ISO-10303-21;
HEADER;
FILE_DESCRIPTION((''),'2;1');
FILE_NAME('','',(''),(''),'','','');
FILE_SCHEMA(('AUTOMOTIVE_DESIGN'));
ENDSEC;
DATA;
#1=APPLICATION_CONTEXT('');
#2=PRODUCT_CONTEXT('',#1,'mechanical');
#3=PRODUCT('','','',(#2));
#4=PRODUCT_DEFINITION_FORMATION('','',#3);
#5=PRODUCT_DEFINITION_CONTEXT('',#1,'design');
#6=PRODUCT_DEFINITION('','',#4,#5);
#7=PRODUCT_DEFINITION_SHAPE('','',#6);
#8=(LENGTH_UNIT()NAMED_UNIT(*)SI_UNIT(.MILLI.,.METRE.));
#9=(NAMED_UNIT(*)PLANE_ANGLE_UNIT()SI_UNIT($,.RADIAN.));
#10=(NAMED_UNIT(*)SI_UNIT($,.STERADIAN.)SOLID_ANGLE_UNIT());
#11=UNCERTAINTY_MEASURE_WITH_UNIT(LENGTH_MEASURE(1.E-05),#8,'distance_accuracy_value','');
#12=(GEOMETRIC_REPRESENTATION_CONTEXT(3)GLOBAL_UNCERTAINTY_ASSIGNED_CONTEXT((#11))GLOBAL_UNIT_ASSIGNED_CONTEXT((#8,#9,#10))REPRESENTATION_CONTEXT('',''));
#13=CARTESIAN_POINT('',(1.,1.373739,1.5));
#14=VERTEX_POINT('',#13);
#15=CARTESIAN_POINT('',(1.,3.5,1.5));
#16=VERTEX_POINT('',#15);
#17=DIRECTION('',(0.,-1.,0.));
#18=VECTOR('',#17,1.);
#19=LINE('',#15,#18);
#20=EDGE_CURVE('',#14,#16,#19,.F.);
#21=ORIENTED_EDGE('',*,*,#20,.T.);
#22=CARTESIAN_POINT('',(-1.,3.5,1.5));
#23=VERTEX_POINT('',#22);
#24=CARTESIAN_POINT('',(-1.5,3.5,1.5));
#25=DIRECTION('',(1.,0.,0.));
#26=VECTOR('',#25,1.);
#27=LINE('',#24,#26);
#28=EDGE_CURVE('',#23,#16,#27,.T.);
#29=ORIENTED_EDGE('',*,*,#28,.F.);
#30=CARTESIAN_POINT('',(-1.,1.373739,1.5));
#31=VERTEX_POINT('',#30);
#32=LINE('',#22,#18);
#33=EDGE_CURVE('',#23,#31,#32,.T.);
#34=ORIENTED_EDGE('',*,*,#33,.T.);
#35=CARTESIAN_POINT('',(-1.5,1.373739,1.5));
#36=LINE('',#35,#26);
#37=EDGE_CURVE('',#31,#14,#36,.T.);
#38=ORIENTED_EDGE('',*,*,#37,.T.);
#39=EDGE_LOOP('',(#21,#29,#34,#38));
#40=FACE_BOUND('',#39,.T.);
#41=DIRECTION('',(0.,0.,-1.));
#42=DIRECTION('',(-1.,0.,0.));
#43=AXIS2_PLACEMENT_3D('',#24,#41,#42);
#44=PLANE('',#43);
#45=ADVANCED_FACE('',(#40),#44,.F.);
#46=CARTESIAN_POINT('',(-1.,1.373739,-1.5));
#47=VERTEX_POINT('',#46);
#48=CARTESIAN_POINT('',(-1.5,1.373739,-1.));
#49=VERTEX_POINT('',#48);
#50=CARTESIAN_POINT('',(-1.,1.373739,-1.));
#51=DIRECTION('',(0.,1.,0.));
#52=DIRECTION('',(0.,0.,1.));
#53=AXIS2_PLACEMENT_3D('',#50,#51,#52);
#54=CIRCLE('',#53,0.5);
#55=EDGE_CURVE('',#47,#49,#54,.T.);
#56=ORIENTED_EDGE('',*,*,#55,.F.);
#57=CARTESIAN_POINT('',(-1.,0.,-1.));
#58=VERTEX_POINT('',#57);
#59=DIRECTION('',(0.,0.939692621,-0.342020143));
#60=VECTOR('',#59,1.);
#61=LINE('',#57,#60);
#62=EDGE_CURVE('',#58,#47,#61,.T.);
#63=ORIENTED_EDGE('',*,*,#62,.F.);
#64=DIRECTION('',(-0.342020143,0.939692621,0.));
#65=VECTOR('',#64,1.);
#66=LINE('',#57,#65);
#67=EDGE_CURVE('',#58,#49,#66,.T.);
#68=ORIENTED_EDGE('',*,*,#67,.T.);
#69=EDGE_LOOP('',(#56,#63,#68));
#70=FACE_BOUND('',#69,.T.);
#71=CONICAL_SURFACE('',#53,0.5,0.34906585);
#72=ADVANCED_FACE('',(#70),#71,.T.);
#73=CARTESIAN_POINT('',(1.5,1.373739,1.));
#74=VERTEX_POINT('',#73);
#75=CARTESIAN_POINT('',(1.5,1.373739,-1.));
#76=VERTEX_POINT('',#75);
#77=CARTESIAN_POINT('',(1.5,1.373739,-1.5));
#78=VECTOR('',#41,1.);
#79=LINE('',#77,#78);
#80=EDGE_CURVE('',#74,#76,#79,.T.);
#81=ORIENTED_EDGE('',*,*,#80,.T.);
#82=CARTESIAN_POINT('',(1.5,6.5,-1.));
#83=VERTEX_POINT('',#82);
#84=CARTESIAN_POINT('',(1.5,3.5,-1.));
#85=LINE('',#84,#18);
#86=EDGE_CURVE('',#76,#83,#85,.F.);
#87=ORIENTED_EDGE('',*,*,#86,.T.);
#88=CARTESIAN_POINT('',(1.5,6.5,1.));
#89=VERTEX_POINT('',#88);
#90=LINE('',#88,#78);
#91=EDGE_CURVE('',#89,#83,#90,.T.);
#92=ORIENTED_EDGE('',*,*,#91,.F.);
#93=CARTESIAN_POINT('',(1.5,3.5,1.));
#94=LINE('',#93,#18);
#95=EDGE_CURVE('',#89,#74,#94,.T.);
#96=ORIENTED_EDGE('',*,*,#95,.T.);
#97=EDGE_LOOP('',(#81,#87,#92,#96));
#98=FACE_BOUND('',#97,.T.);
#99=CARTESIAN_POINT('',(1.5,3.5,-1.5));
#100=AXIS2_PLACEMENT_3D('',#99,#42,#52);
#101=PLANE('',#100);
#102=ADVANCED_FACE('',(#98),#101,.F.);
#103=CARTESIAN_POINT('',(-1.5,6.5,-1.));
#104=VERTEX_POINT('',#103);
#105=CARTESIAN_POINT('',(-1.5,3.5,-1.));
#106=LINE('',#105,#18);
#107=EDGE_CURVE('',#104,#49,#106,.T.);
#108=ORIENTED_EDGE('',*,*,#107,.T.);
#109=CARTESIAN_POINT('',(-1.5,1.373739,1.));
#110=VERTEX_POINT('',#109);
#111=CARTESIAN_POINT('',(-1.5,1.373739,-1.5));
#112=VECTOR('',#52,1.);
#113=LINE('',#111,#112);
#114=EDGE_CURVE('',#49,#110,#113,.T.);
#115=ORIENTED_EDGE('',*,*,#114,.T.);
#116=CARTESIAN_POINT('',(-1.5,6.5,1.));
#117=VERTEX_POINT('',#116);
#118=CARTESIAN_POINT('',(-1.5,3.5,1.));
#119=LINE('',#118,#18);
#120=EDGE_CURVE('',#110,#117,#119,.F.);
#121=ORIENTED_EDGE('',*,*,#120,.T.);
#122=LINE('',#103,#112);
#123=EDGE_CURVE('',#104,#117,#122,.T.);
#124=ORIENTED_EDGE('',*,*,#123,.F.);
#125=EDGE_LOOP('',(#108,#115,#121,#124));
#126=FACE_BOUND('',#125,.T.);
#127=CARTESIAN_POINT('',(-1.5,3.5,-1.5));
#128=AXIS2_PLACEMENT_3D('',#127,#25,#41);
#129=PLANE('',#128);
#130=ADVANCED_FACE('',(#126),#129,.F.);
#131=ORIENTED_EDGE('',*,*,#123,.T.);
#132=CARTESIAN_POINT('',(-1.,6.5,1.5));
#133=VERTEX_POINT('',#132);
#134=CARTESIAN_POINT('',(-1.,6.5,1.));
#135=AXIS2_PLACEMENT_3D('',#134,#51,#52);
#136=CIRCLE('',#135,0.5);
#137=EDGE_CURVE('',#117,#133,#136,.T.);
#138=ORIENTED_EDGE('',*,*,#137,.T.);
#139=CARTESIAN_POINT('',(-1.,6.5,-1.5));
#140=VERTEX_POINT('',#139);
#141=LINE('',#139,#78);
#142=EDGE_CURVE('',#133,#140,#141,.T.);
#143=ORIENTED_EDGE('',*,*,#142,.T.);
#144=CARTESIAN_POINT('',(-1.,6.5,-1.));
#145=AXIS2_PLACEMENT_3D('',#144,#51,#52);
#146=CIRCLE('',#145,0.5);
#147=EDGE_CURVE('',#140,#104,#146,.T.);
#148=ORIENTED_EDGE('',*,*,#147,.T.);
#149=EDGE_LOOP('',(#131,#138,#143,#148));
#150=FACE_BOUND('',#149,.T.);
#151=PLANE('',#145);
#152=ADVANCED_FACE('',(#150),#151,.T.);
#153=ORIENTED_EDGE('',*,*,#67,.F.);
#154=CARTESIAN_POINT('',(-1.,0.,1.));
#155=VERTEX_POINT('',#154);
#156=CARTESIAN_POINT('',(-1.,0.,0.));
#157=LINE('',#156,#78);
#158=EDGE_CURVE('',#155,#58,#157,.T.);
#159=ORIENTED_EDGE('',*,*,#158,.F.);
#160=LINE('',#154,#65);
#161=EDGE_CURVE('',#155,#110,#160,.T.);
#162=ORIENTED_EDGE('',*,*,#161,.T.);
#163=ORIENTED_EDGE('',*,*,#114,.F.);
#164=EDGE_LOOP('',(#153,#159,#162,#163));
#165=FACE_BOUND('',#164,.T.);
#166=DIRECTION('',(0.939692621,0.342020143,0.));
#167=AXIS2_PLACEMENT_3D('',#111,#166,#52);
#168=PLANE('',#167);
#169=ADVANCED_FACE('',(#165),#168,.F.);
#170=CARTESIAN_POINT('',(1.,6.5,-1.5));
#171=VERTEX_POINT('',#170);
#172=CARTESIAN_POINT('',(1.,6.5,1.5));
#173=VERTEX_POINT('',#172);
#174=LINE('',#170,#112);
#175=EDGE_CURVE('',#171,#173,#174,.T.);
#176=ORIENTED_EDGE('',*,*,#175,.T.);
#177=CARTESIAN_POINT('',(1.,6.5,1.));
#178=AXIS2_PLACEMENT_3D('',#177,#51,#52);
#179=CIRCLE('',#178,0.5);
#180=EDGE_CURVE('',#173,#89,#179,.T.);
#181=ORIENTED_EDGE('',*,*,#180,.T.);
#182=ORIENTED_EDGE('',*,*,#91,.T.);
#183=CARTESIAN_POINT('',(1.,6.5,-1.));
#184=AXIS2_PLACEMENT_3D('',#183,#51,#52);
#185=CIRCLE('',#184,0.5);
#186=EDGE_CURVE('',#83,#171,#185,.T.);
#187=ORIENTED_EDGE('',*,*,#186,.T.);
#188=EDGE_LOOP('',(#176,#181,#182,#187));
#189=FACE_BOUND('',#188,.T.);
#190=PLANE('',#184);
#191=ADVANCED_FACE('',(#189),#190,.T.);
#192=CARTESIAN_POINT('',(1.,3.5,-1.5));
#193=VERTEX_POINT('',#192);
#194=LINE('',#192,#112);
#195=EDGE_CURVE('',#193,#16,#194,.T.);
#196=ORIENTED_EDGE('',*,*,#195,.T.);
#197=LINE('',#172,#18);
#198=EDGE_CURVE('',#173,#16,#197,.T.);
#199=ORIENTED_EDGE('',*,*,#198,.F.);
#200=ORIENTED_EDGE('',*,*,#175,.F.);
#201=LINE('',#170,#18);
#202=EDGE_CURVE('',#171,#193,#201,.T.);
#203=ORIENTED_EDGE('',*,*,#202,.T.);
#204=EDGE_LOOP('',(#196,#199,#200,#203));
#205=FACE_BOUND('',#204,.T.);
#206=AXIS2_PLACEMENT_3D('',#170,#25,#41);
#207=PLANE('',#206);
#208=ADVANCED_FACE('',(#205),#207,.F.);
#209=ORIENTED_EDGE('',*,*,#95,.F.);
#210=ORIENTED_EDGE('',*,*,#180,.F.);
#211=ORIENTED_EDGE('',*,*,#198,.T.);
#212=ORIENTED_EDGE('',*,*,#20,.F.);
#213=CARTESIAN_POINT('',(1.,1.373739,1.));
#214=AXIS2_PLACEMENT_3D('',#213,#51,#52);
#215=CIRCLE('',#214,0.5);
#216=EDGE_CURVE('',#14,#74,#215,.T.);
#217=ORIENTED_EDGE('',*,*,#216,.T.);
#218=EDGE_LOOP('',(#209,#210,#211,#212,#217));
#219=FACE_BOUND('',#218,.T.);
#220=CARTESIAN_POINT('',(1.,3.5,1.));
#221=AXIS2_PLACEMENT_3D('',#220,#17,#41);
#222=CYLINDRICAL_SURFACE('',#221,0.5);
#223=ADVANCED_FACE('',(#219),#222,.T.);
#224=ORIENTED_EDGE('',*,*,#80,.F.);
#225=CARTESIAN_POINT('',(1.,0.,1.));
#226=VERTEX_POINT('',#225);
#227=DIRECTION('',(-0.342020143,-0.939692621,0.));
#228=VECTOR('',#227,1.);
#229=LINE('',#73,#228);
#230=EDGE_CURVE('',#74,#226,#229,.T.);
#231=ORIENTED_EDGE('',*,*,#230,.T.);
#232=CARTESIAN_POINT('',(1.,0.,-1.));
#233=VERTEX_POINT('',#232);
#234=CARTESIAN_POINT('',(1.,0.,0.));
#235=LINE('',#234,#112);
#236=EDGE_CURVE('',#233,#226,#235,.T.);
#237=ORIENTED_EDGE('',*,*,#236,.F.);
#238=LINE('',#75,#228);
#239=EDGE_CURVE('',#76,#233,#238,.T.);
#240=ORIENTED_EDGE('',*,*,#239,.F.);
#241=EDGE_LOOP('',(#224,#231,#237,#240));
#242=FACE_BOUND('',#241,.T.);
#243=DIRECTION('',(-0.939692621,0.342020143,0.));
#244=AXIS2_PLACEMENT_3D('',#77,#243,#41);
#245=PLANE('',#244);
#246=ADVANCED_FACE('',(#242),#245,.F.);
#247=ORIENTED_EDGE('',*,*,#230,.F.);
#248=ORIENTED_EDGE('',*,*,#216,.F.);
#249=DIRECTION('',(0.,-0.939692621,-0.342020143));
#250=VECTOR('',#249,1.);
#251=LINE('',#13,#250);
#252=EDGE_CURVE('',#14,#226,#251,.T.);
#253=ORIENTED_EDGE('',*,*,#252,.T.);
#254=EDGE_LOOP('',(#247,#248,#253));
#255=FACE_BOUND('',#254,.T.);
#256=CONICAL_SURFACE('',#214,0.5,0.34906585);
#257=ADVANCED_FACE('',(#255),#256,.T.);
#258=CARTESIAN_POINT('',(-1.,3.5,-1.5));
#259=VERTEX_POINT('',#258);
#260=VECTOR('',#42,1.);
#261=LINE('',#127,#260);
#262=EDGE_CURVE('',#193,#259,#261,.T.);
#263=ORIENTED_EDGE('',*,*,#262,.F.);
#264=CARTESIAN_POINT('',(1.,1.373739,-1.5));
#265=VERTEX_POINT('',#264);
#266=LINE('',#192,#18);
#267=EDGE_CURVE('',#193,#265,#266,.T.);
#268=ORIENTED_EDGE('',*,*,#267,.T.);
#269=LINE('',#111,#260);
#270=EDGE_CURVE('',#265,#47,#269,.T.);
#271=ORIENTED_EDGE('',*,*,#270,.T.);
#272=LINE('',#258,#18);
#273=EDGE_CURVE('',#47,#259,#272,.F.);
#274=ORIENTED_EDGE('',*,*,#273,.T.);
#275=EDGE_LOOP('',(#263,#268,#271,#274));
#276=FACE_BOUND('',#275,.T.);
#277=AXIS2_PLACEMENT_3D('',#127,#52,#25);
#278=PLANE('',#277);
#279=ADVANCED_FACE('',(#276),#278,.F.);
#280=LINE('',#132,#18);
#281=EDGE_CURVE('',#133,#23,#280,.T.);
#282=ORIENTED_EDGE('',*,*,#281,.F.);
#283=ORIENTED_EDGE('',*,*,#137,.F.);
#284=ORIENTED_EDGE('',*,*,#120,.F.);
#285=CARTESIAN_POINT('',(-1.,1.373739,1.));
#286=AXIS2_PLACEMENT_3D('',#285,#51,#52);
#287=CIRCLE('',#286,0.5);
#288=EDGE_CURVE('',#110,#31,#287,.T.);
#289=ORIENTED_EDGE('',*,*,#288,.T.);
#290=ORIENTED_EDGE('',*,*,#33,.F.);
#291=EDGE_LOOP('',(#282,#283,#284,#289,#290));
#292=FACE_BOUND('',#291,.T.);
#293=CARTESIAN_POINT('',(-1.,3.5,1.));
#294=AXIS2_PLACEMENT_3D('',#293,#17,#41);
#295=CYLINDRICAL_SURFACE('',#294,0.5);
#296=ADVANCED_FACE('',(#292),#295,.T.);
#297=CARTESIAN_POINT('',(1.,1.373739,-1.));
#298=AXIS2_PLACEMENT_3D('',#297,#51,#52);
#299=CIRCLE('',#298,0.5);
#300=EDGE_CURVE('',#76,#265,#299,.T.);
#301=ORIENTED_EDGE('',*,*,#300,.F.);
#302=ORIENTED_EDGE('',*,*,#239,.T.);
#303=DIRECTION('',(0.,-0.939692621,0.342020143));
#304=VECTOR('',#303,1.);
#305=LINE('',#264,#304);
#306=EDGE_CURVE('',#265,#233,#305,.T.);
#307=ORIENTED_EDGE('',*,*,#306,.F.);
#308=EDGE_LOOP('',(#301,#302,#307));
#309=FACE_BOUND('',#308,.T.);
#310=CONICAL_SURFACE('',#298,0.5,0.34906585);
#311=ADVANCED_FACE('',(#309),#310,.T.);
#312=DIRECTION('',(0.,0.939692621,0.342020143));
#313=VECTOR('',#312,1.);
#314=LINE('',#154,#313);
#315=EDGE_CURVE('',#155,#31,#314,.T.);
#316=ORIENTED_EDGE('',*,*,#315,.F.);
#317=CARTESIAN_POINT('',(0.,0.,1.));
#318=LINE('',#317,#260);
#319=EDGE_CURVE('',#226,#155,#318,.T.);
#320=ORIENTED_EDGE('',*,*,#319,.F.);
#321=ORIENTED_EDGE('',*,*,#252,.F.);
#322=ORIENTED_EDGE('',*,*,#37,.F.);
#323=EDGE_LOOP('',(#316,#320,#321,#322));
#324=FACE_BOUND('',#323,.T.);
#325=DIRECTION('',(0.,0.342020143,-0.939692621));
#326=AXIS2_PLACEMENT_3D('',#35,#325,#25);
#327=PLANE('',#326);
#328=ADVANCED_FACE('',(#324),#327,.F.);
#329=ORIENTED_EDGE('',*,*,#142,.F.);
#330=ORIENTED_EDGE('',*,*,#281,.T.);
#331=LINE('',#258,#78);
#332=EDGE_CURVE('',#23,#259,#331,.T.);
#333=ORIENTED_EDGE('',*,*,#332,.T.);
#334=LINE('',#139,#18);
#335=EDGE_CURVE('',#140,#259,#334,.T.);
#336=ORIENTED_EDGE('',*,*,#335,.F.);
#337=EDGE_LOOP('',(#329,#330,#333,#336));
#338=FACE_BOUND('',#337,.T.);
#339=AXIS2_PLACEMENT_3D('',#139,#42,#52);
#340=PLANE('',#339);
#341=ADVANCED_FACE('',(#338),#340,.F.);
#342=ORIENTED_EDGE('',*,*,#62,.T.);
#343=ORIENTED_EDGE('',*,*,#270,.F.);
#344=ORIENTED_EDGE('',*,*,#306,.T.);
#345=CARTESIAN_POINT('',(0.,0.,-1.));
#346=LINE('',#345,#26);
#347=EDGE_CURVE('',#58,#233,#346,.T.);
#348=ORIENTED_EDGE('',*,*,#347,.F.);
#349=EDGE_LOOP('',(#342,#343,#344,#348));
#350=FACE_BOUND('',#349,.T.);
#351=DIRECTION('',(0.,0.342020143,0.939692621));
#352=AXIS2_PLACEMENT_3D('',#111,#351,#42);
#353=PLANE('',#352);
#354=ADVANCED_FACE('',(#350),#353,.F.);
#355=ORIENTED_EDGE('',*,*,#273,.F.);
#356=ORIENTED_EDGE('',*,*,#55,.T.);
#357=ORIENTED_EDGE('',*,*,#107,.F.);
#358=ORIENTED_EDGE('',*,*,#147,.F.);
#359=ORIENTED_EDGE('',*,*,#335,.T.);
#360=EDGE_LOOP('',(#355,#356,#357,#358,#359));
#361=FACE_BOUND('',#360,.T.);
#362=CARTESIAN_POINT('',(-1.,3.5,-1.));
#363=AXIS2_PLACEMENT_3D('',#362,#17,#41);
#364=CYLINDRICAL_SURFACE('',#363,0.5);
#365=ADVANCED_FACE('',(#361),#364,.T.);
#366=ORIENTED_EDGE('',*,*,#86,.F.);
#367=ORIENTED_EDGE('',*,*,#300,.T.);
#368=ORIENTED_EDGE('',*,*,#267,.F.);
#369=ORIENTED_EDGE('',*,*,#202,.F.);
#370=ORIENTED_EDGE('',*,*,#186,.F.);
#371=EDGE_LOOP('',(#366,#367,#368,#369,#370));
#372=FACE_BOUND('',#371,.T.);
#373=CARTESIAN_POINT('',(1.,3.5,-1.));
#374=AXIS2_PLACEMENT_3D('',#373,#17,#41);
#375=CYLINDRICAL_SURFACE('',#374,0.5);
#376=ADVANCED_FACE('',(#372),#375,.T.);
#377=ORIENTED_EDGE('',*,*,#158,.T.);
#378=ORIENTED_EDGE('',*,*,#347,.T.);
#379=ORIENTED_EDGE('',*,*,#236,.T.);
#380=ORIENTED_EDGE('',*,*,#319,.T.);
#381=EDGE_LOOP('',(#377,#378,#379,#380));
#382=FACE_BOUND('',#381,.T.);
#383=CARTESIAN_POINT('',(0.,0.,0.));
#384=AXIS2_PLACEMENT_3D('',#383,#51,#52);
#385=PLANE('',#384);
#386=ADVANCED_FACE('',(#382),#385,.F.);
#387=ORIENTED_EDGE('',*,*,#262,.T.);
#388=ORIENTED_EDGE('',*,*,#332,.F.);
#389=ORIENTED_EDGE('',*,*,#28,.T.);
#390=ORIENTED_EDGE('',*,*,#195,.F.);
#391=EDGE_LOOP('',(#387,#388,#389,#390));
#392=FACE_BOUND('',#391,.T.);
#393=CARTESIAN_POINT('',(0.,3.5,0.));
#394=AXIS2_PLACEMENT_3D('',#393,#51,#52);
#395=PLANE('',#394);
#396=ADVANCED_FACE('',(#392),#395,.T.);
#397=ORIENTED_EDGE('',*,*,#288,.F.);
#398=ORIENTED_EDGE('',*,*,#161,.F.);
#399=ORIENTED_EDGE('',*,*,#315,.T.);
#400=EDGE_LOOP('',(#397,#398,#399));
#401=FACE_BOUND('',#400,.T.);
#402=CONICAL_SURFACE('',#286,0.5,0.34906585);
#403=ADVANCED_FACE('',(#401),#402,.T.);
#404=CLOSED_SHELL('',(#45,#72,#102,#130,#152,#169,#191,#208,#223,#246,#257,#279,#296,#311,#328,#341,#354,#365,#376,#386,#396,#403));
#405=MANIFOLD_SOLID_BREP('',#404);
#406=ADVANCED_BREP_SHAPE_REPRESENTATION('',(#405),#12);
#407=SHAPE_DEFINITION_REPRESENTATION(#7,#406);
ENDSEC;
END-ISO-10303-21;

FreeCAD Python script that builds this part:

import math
import FreeCAD as App
import Part
import Sketcher
from FreeCAD import Vector


def edges_at(feature, points):
    """Names of the edges that pass closest to the given points."""
    edges = feature.Shape.Edges
    near = lambda p: min(range(len(edges)), key=lambda i: edges[i].distToShape(Part.Vertex(*p))[0])
    return sorted({f"Edge{near(p) + 1}" for p in points})


def add_polygon(sketch, points):
    """Adds a closed chain of lines whose ends are joined by coincident constraints."""
    first, n = sketch.GeometryCount, len(points)
    for a, b in zip(points, points[1:] + points[:1]):
        sketch.addGeometry(Part.LineSegment(App.Vector(*a, 0), App.Vector(*b, 0)), False)
    for i in range(n):
        sketch.addConstraint(Sketcher.Constraint("Coincident", first + i, 2, first + (i + 1) % n, 1))

doc = App.newDocument("Part")
body = doc.addObject("PartDesign::Body", "Body")

# Sketch on XZ plane
sketch1 = body.newObject("Sketcher::SketchObject", "Sketch")
sketch1.AttachmentSupport = (doc.getObject("XZ_Plane"), [""])
sketch1.MapMode = "FlatFace"
add_polygon(sketch1, [(-1.5, -1.5), (-1.5, 1.5), (1.5, 1.5), (1.5, -1.5)])  # lines 0-3
sketch1.addConstraint([
    Sketcher.Constraint("Vertical", 0),
    Sketcher.Constraint("Horizontal", 1),
    Sketcher.Constraint("Vertical", 2),
    Sketcher.Constraint("Horizontal", 3),
    Sketcher.Constraint("Symmetric", 0, 2, 2, 2, -1, 1),
    Sketcher.Constraint("Equal", 3, 0),
    Sketcher.Constraint("DistanceX", 1, 1, 1, 2, 3.0),
])
pad1 = body.newObject("PartDesign::Pad", "Pad")
pad1.Profile = sketch1
pad1.Length = 3.5
pad1.Reversed = True
doc.recompute()

fillet = body.newObject("PartDesign::Fillet", "Fillet")
fillet.Base = (pad1, edges_at(pad1, [
    (-1.5, 1.75, -1.5),
    (1.5, 1.75, -1.5),
    (1.5, 1.75, 1.5),
    (-1.5, 1.75, 1.5),
]))
fillet.Radius = 0.5
doc.recompute()

chamfer = body.newObject("PartDesign::Chamfer", "Chamfer")
chamfer.Base = (fillet, edges_at(fillet, [
    (-1.5, 0, 0),
    (0, 0, -1.5),
    (1.5, 0, 0),
    (0, 0, 1.5),
    (1.354, 0, 1.354),
    (-1.354, 0, 1.354),
    (1.354, 0, -1.354),
    (-1.354, 0, -1.354),
]))
chamfer.ChamferType = "Two distances"
chamfer.Size = 0.5
chamfer.Size2 = 1.373739
chamfer.FlipDirection = True

# Sketch on XZ plane
sketch2 = body.newObject("Sketcher::SketchObject", "Sketch001")
sketch2.AttachmentSupport = (doc.getObject("XZ_Plane"), [""])
sketch2.MapMode = "FlatFace"
sketch2.AttachmentOffset = App.Placement(Vector(0, 0, -6.5), App.Rotation())
sketch2.addGeometry([
    Part.LineSegment(Vector(-1, 1.5, 0), Vector(-1, -1.5, 0)),  # 0
    Part.ArcOfCircle(Part.Circle(Vector(-1, -1, 0), Vector(0, 0, 1), 0.5), math.radians(180), math.radians(270)),  # 1
    Part.LineSegment(Vector(-1.5, -1, 0), Vector(-1.5, 1, 0)),  # 2
    Part.ArcOfCircle(Part.Circle(Vector(-1, 1, 0), Vector(0, 0, 1), 0.5), math.radians(90), math.radians(180)),  # 3
    Part.LineSegment(Vector(1.5, 1, 0), Vector(1.5, -1, 0)),  # 4
    Part.ArcOfCircle(Part.Circle(Vector(1, -1, 0), Vector(0, 0, 1), 0.5), math.radians(-90), math.radians(0)),  # 5
    Part.LineSegment(Vector(1, -1.5, 0), Vector(1, 1.5, 0)),  # 6
    Part.ArcOfCircle(Part.Circle(Vector(1, 1, 0), Vector(0, 0, 1), 0.5), math.radians(0), math.radians(90)),  # 7
], False)
sketch2.addConstraint([
    Sketcher.Constraint("Coincident", 0, 2, 1, 2),
    Sketcher.Constraint("Tangent", 1, 1, 2, 1),
    Sketcher.Constraint("Tangent", 2, 2, 3, 2),
    Sketcher.Constraint("Coincident", 3, 1, 0, 1),
    Sketcher.Constraint("Tangent", 4, 2, 5, 2),
    Sketcher.Constraint("Coincident", 5, 1, 6, 1),
    Sketcher.Constraint("Coincident", 6, 2, 7, 2),
    Sketcher.Constraint("Tangent", 7, 1, 4, 1),
    Sketcher.Constraint("Vertical", 0),
    Sketcher.Constraint("Vertical", 2),
    Sketcher.Constraint("Vertical", 4),
    Sketcher.Constraint("Vertical", 6),
    Sketcher.Constraint("Equal", 1, 3),
    Sketcher.Constraint("Equal", 3, 5),
    Sketcher.Constraint("Equal", 5, 7),
    Sketcher.Constraint("Symmetric", 3, 3, 5, 3, -1, 1),
    Sketcher.Constraint("Symmetric", 0, 2, 6, 2, -1, 1),
    Sketcher.Constraint("Horizontal", 1, 3, 5, 3),
    Sketcher.Constraint("Vertical", 3, 3, 0, 2),
    Sketcher.Constraint("Radius", 1, 0.5),
    Sketcher.Constraint("DistanceY", 0, 2, 0, 1, 3.0),
    Sketcher.Constraint("DistanceX", 1, 3, -1, 1, 1.0),
])
pad2 = body.newObject("PartDesign::Pad", "Pad001")
pad2.Profile = sketch2
pad2.Length = 3

doc.recompute()
